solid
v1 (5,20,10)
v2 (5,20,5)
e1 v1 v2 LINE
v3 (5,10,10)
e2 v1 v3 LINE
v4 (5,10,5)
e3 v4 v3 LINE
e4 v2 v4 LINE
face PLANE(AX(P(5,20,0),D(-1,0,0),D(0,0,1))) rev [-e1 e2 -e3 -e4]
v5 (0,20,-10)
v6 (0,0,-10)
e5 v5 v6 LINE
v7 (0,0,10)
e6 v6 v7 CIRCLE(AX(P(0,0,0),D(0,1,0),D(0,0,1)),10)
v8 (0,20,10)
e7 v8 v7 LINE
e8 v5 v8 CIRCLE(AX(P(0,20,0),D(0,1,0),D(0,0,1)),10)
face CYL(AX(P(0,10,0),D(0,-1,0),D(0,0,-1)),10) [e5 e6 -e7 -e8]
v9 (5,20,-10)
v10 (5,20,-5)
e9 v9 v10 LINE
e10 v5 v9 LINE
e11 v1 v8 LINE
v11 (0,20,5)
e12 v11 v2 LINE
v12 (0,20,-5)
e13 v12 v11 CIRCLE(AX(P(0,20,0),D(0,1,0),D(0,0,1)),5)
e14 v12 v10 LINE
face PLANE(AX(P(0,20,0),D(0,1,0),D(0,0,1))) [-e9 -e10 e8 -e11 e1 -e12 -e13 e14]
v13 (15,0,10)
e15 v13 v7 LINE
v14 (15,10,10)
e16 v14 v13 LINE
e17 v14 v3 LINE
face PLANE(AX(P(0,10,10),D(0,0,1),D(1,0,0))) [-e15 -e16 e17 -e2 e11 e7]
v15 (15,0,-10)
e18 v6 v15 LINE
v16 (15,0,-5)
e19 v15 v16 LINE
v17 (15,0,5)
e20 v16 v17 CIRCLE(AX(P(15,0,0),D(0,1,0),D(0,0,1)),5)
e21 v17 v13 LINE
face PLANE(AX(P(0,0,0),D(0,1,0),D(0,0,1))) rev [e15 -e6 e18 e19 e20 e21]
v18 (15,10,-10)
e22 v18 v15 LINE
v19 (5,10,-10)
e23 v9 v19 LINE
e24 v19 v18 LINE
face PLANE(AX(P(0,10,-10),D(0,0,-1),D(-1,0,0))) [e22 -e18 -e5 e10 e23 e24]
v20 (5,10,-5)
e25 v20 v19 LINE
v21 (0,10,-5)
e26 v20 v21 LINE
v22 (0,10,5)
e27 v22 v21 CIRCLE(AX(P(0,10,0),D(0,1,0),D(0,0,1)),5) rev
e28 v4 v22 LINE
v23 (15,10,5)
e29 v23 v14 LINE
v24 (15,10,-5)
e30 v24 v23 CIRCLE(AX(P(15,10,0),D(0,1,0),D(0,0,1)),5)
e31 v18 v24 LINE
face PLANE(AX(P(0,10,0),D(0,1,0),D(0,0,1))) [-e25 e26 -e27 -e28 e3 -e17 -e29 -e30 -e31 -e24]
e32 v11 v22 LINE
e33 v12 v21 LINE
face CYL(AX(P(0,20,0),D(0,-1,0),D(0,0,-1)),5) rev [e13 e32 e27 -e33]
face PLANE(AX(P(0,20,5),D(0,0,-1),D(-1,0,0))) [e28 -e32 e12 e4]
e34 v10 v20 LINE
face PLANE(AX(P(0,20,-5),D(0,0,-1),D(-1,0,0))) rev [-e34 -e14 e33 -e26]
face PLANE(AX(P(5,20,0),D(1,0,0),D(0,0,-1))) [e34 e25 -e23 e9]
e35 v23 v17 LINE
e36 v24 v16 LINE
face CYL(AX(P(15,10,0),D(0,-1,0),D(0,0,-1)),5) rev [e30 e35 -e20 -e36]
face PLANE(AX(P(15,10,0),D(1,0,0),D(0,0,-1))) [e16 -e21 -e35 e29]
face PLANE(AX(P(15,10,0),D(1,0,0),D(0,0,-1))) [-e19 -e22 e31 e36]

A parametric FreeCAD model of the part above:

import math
import FreeCAD as App
import Part
import Sketcher

V = App.Vector

doc = App.newDocument("Part")
params = doc.addObject("Spreadsheet::Sheet", "Params")
for row, (alias, value) in enumerate([
    ("sketch1_radius", "10 mm"),
    ("sketch1_radius2", "5 mm"),
    ("sketch1_width", "15 mm"),
    ("pad1_length", "10 mm"),
    ("sketch2_radius", "10 mm"),
    ("sketch2_radius2", "5 mm"),
    ("pad2_length", "20 mm"),
], start=1):
    params.set(f"A{row}", alias)
    params.set(f"B{row}", "=" + value)
    params.setAlias(f"B{row}", alias)

body = doc.addObject("PartDesign::Body", "Body")

sketch1 = body.newObject("Sketcher::SketchObject", "Sketch")
sketch1.AttachmentSupport = (doc.getObject("XZ_Plane"), [""])
sketch1.MapMode = "FlatFace"
sketch1.addGeometry(Part.LineSegment(V(15, -10, 0), V(0, -10, 0)), False)
sketch1.addGeometry(Part.ArcOfCircle(Part.Circle(V(0, 0, 0), V(0, 0, 1), 10), math.radians(90), math.radians(270)), False)
sketch1.addGeometry(Part.LineSegment(V(0, 10, 0), V(15, 10, 0)), False)
sketch1.addGeometry(Part.LineSegment(V(15, 10, 0), V(15, 5, 0)), False)
sketch1.addGeometry(Part.ArcOfCircle(Part.Circle(V(15, 0, 0), V(0, 0, 1), 5), math.radians(90), math.radians(270)), False)
sketch1.addGeometry(Part.LineSegment(V(15, -5, 0), V(15, -10, 0)), False)
sketch1.addConstraint(Sketcher.Constraint("Tangent", 0, 2, 1, 2))
sketch1.addConstraint(Sketcher.Constraint("Tangent", 1, 1, 2, 1))
sketch1.addConstraint(Sketcher.Constraint("Coincident", 2, 2, 3, 1))
sketch1.addConstraint(Sketcher.Constraint("Coincident", 3, 2, 4, 1))
sketch1.addConstraint(Sketcher.Constraint("Coincident", 4, 2, 5, 1))
sketch1.addConstraint(Sketcher.Constraint("Coincident", 5, 2, 0, 1))
sketch1.addConstraint(Sketcher.Constraint("Horizontal", 0))
sketch1.addConstraint(Sketcher.Constraint("Horizontal", 2))
sketch1.addConstraint(Sketcher.Constraint("Vertical", 3))
sketch1.addConstraint(Sketcher.Constraint("Vertical", 5))
sketch1.addConstraint(Sketcher.Constraint("Coincident", 1, 3, -1, 1))
sketch1.addConstraint(Sketcher.Constraint("Symmetric", 3, 2, 4, 2, -1))
sketch1.addConstraint(Sketcher.Constraint("Vertical", 4, 3, 2, 2))
sketch1.addConstraint(Sketcher.Constraint("Radius", 1, 10.0))
sketch1.addConstraint(Sketcher.Constraint("Radius", 4, 5.0))
sketch1.addConstraint(Sketcher.Constraint("DistanceX", 0, 2, 0, 1, 15.0))
sketch1.setExpression("Constraints[13]", "Params.sketch1_radius")
sketch1.setExpression("Constraints[14]", "Params.sketch1_radius2")
sketch1.setExpression("Constraints[15]", "Params.sketch1_width")
pad1 = body.newObject("PartDesign::Pad", "Pad")
pad1.Profile = sketch1
pad1.setExpression("Length", "Params.pad1_length")
pad1.Reversed = True

sketch2 = body.newObject("Sketcher::SketchObject", "Sketch001")
sketch2.AttachmentSupport = (doc.getObject("XZ_Plane"), [""])
sketch2.MapMode = "FlatFace"
sketch2.addGeometry(Part.LineSegment(V(5, -5, 0), V(5, -10, 0)), False)
sketch2.addGeometry(Part.LineSegment(V(5, -10, 0), V(0, -10, 0)), False)
sketch2.addGeometry(Part.ArcOfCircle(Part.Circle(V(0, 0, 0), V(0, 0, 1), 10), math.radians(90), math.radians(270)), False)
sketch2.addGeometry(Part.LineSegment(V(0, 10, 0), V(5, 10, 0)), False)
sketch2.addGeometry(Part.LineSegment(V(5, 10, 0), V(5, 5, 0)), False)
sketch2.addGeometry(Part.LineSegment(V(5, 5, 0), V(0, 5, 0)), False)
sketch2.addGeometry(Part.ArcOfCircle(Part.Circle(V(0, 0, 0), V(0, 0, 1), 5), math.radians(90), math.radians(270)), False)
sketch2.addGeometry(Part.LineSegment(V(0, -5, 0), V(5, -5, 0)), False)
sketch2.addConstraint(Sketcher.Constraint("Coincident", 0, 2, 1, 1))
sketch2.addConstraint(Sketcher.Constraint("Tangent", 1, 2, 2, 2))
sketch2.addConstraint(Sketcher.Constraint("Tangent", 2, 1, 3, 1))
sketch2.addConstraint(Sketcher.Constraint("Coincident", 3, 2, 4, 1))
sketch2.addConstraint(Sketcher.Constraint("Coincident", 4, 2, 5, 1))
sketch2.addConstraint(Sketcher.Constraint("Tangent", 5, 2, 6, 1))
sketch2.addConstraint(Sketcher.Constraint("Tangent", 6, 2, 7, 1))
sketch2.addConstraint(Sketcher.Constraint("Coincident", 7, 2, 0, 1))
sketch2.addConstraint(Sketcher.Constraint("Vertical", 0))
sketch2.addConstraint(Sketcher.Constraint("Horizontal", 1))
sketch2.addConstraint(Sketcher.Constraint("Horizontal", 3))
sketch2.addConstraint(Sketcher.Constraint("Vertical", 4))
sketch2.addConstraint(Sketcher.Constraint("Horizontal", 5))
sketch2.addConstraint(Sketcher.Constraint("Horizontal", 7))
sketch2.addConstraint(Sketcher.Constraint("Coincident", 2, 3, -1, 1))
sketch2.addConstraint(Sketcher.Constraint("Coincident", 6, 3, -1, 1))
sketch2.addConstraint(Sketcher.Constraint("Vertical", 0, 2, 3, 2))
sketch2.addConstraint(Sketcher.Constraint("Equal", 7, 0))
sketch2.addConstraint(Sketcher.Constraint("Radius", 2, 10.0))
sketch2.addConstraint(Sketcher.Constraint("Radius", 6, 5.0))
sketch2.setExpression("Constraints[18]", "Params.sketch2_radius")
sketch2.setExpression("Constraints[19]", "Params.sketch2_radius2")
pad2 = body.newObject("PartDesign::Pad", "Pad001")
pad2.Profile = sketch2
pad2.setExpression("Length", "Params.pad2_length")
pad2.Reversed = True

doc.recompute()
